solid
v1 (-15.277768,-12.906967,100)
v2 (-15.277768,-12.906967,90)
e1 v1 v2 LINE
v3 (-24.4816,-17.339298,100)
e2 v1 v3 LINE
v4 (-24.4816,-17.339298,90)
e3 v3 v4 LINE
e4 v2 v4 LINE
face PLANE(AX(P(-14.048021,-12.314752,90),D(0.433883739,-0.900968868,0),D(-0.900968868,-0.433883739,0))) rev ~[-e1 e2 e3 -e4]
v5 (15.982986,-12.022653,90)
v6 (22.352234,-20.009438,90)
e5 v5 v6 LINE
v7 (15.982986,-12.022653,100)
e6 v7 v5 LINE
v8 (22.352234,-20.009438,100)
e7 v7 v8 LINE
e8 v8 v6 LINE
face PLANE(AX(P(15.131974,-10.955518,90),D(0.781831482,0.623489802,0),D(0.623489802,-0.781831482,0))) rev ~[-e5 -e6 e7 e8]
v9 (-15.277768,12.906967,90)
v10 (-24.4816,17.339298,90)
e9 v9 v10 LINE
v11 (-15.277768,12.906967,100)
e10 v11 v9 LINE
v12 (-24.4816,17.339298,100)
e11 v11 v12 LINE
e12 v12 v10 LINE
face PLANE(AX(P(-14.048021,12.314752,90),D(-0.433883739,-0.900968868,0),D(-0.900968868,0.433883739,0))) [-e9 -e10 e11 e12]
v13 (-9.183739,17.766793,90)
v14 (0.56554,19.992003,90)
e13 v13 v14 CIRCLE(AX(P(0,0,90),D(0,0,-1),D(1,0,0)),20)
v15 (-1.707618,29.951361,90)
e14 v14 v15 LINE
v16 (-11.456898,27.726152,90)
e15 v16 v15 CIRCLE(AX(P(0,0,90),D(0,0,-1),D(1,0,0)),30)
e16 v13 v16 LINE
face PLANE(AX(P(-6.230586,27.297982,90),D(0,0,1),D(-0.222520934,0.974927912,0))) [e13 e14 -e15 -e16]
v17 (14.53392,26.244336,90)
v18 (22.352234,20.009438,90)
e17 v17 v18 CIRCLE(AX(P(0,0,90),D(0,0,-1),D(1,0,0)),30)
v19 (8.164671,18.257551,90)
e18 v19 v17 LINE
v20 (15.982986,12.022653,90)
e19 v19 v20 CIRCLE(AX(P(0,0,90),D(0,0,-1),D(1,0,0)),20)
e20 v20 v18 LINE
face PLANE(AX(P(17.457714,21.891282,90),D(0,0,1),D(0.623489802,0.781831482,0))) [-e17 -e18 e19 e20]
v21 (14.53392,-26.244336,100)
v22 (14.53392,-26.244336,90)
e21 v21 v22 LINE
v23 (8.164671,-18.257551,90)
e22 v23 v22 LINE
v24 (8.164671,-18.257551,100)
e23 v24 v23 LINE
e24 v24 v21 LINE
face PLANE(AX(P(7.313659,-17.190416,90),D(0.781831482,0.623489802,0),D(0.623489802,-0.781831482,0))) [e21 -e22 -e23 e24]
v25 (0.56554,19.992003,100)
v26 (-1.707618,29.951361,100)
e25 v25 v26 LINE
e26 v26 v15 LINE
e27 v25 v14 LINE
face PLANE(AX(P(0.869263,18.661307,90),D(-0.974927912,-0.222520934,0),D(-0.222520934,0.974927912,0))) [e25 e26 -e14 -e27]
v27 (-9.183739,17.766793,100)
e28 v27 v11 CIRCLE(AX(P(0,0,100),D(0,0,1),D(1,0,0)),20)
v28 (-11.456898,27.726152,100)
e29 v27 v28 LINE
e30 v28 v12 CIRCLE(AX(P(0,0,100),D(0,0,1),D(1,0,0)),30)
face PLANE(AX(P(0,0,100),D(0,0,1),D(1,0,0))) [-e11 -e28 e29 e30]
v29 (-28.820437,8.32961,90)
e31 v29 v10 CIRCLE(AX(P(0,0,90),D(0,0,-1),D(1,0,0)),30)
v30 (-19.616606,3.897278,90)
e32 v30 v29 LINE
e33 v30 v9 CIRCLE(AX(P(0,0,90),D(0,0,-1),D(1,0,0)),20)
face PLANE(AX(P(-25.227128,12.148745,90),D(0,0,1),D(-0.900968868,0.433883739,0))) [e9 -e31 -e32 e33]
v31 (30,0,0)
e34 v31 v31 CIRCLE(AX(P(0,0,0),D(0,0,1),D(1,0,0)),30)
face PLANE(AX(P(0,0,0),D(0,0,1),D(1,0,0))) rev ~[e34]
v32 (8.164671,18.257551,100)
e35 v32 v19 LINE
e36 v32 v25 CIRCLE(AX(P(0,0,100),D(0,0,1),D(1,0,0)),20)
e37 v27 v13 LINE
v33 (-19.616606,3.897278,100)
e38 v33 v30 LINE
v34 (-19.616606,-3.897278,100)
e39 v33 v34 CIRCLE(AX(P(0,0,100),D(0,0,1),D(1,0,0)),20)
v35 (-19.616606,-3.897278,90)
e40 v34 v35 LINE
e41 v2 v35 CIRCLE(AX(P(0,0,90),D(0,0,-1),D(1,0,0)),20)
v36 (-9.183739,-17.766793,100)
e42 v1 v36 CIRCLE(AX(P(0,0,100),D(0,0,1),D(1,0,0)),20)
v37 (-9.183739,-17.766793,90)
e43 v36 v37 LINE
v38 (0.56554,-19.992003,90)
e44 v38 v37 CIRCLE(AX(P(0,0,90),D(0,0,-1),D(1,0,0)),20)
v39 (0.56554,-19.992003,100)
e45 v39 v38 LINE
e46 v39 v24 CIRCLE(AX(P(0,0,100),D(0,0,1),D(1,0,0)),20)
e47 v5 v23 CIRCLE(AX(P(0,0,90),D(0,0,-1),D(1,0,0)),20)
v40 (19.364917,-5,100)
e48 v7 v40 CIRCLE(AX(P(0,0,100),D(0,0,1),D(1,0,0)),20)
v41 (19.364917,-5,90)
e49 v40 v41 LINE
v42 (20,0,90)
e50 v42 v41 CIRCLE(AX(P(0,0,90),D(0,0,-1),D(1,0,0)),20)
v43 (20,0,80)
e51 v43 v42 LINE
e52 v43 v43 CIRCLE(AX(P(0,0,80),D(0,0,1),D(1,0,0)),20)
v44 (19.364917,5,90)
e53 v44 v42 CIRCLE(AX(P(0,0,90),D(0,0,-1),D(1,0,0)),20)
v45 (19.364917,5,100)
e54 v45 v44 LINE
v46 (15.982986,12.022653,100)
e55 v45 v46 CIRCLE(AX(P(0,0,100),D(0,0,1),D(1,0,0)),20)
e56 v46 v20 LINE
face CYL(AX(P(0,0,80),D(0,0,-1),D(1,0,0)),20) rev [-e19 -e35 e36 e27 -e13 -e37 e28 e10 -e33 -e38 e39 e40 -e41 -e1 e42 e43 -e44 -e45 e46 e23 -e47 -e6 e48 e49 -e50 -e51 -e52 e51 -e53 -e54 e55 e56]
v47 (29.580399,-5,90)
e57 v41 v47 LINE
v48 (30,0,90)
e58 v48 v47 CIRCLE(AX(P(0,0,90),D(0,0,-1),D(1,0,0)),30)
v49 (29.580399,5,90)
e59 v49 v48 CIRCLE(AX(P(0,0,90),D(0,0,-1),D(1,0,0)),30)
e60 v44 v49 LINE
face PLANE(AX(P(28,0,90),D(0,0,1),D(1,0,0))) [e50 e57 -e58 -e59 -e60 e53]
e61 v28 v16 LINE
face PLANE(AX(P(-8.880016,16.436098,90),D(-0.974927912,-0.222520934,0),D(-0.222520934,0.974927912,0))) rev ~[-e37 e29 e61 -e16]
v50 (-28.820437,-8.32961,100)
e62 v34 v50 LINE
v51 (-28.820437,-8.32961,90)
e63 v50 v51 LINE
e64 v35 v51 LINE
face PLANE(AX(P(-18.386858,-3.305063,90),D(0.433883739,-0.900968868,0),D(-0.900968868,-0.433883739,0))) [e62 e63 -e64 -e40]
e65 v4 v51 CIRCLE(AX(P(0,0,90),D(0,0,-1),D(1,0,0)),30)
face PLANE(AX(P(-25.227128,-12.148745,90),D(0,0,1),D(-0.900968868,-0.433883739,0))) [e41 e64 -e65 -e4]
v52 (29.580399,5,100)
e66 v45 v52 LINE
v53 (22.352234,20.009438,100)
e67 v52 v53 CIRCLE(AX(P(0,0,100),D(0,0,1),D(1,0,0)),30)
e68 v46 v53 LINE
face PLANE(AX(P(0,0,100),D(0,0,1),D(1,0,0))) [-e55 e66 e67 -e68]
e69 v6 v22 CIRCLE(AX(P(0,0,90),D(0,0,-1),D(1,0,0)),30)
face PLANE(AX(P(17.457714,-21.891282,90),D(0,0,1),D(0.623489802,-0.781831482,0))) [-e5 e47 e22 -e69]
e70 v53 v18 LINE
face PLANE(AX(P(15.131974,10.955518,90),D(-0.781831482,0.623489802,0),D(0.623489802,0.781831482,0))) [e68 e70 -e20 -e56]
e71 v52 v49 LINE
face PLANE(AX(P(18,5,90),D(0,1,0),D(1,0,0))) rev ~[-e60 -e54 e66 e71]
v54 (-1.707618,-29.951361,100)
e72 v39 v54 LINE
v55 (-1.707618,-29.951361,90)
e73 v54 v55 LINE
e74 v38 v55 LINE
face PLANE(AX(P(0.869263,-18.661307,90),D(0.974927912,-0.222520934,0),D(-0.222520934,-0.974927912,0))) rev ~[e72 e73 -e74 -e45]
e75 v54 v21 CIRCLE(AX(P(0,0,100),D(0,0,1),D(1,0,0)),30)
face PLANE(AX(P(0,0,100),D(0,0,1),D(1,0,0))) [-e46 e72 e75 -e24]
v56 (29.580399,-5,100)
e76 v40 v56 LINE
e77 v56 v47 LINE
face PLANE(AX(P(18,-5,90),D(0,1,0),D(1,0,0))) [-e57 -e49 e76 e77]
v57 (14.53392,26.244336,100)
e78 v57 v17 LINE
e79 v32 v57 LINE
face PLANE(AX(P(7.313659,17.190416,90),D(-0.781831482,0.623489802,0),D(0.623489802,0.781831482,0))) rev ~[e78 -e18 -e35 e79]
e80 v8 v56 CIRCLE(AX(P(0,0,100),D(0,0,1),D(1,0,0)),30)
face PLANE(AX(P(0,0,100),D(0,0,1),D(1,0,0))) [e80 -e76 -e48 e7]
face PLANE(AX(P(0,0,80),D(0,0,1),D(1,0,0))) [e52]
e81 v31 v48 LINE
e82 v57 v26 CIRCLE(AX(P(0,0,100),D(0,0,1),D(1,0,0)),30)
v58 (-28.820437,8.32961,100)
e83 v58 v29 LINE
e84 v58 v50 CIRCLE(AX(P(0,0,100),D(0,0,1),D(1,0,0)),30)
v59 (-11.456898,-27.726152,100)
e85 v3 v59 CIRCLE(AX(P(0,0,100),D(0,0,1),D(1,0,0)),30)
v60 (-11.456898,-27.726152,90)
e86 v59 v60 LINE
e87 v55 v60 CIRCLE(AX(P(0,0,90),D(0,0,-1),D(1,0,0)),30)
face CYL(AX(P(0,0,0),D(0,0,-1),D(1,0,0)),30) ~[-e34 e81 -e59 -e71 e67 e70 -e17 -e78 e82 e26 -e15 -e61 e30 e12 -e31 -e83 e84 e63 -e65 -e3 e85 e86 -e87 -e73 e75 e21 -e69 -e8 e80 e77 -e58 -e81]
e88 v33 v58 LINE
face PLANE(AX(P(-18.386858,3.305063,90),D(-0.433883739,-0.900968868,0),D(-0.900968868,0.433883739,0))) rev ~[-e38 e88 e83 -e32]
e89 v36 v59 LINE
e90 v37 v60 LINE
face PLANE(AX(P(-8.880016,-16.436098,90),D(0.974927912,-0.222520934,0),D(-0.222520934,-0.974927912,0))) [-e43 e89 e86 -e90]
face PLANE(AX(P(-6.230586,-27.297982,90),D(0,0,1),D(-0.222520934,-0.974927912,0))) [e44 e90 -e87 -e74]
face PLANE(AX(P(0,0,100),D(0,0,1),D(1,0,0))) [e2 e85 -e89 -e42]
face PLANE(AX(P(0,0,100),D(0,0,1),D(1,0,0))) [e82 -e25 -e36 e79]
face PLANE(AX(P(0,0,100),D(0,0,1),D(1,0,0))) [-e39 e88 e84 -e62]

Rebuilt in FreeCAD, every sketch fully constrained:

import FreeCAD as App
import Part
import Sketcher

V = App.Vector
Q = App.Units.Quantity

doc = App.newDocument("Part")
body = doc.addObject("PartDesign::Body", "Body")

# Sketch on XY plane
sketch1 = doc.addObject("Sketcher::SketchObject", "Sketch")
body.addObject(sketch1)
sketch1.AttachmentSupport = (doc.XY_Plane, [""])
sketch1.MapMode = "FlatFace"
sketch1.AttachmentOffset = App.Placement(V(0, 0, 90), App.Rotation())
sketch1.addGeometry([
    Part.LineSegment(V(18, 5, 0), V(18, -5, 0)),
    Part.LineSegment(V(18, -5, 0), V(38, -5, 0)),
    Part.LineSegment(V(38, -5, 0), V(38, 5, 0)),
    Part.LineSegment(V(38, 5, 0), V(18, 5, 0)),
], False)
sketch1.addConstraint([
    Sketcher.Constraint("Coincident", 0, 2, 1, 1),
    Sketcher.Constraint("Coincident", 1, 2, 2, 1),
    Sketcher.Constraint("Coincident", 2, 2, 3, 1),
    Sketcher.Constraint("Coincident", 3, 2, 0, 1),
    Sketcher.Constraint("Vertical", 0),
    Sketcher.Constraint("Horizontal", 1),
    Sketcher.Constraint("Vertical", 2),
    Sketcher.Constraint("Horizontal", 3),
    Sketcher.Constraint("DistanceX", 1, 1, 1, 2, Q("20 mm")),
    Sketcher.Constraint("DistanceY", 0, 2, 0, 1, Q("10 mm")),
    Sketcher.Constraint("DistanceX", -1, 1, 0, 2, Q("18 mm")),
    Sketcher.Constraint("DistanceY", 0, 2, -1, 1, Q("5 mm")),
])
pad1 = doc.addObject("PartDesign::Pad", "Pad")
body.addObject(pad1)
pad1.Profile = sketch1
pad1.Length = 10
body2 = doc.addObject("PartDesign::Body", "Body001")
body2.AllowCompound = True
doc.recompute()

body2.BaseFeature = body
doc.recompute()

body3 = doc.addObject("PartDesign::Body", "Body002")
body3.BaseFeature = body
body3.Placement = App.Placement(V(0, 0, 0), App.Rotation(V(0, 0, 1), 51.428571))
boolean = doc.addObject("PartDesign::Boolean", "Boolean")
body2.addObject(boolean)
boolean.Type = "Fuse"
boolean.addObjects([body3])
doc.recompute()

body4 = doc.addObject("PartDesign::Body", "Body003")
body4.BaseFeature = body
body4.Placement = App.Placement(V(0, 0, 0), App.Rotation(V(0, 0, 1), 102.857143))
boolean2 = doc.addObject("PartDesign::Boolean", "Boolean001")
body2.addObject(boolean2)
boolean2.Type = "Fuse"
boolean2.addObjects([body4])
doc.recompute()

body5 = doc.addObject("PartDesign::Body", "Body004")
body5.BaseFeature = body
body5.Placement = App.Placement(V(0, 0, 0), App.Rotation(V(0, 0, 1), 154.285714))
boolean3 = doc.addObject("PartDesign::Boolean", "Boolean002")
body2.addObject(boolean3)
boolean3.Type = "Fuse"
boolean3.addObjects([body5])
doc.recompute()

body6 = doc.addObject("PartDesign::Body", "Body005")
body6.BaseFeature = body
body6.Placement = App.Placement(V(0, 0, 0), App.Rotation(V(0, 0, 1), 205.714286))
boolean4 = doc.addObject("PartDesign::Boolean", "Boolean003")
body2.addObject(boolean4)
boolean4.Type = "Fuse"
boolean4.addObjects([body6])
doc.recompute()

body7 = doc.addObject("PartDesign::Body", "Body006")
body7.BaseFeature = body
body7.Placement = App.Placement(V(0, 0, 0), App.Rotation(V(0, 0, 1), 257.142857))
boolean5 = doc.addObject("PartDesign::Boolean", "Boolean004")
body2.addObject(boolean5)
boolean5.Type = "Fuse"
boolean5.addObjects([body7])
doc.recompute()

body.Placement = App.Placement(V(0, 0, 0), App.Rotation(V(0, 0, 1), 308.571429))
boolean6 = doc.addObject("PartDesign::Boolean", "Boolean005")
body2.addObject(boolean6)
boolean6.Type = "Fuse"
boolean6.addObjects([body])
body8 = doc.addObject("PartDesign::Body", "Body007")

# Sketch on XY plane
sketch2 = doc.addObject("Sketcher::SketchObject", "Sketch001")
body8.addObject(sketch2)
sketch2.AttachmentSupport = (doc.getObject("XY_Plane007"), [""])
sketch2.MapMode = "FlatFace"
sketch2.AttachmentOffset = App.Placement(V(0, 0, 80), App.Rotation())
sketch2.addGeometry(Part.Circle(V(0, 0, 0), V(0, 0, 1), 20), False)
sketch2.addConstraint([
    Sketcher.Constraint("Coincident", 0, 3, -1, 1),
    Sketcher.Constraint("Diameter", 0, Q("40 mm")),
])
pad2 = doc.addObject("PartDesign::Pad", "Pad001")
body8.addObject(pad2)
pad2.Profile = sketch2
pad2.Length = 20
body9 = doc.addObject("PartDesign::Body", "Body008")

# Sketch on XY plane
sketch3 = doc.addObject("Sketcher::SketchObject", "Sketch002")
body9.addObject(sketch3)
sketch3.AttachmentSupport = (doc.getObject("XY_Plane008"), [""])
sketch3.MapMode = "FlatFace"
sketch3.addGeometry(Part.Circle(V(0, 0, 0), V(0, 0, 1), 30), False)
sketch3.addConstraint([
    Sketcher.Constraint("Coincident", 0, 3, -1, 1),
    Sketcher.Constraint("Diameter", 0, Q("60 mm")),
])
pad3 = doc.addObject("PartDesign::Pad", "Pad002")
body9.addObject(pad3)
pad3.Profile = sketch3
pad3.Length = 100
doc.recompute()

boolean7 = doc.addObject("PartDesign::Boolean", "Boolean006")
body9.addObject(boolean7)
boolean7.Type = "Cut"
boolean7.addObjects([body8])
doc.recompute()

boolean8 = doc.addObject("PartDesign::Boolean", "Boolean007")
body9.addObject(boolean8)
boolean8.Type = "Cut"
boolean8.addObjects([body2])

doc.recompute()
